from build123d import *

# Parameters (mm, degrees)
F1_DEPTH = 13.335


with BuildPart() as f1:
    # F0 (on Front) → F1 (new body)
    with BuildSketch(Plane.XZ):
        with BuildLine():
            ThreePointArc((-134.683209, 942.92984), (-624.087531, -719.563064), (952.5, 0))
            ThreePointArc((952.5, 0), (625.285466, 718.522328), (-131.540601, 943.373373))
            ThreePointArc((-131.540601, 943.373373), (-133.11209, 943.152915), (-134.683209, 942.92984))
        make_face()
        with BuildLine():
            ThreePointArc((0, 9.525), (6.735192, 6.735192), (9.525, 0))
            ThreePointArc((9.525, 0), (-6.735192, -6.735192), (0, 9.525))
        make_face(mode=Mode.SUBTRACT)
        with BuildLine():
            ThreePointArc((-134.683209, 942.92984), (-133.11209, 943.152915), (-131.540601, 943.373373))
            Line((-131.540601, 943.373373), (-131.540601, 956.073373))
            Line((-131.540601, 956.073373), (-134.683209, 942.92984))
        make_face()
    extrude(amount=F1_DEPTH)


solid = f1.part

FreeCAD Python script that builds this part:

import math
import FreeCAD as App
import Part
import Sketcher
from FreeCAD import Vector
Q = App.Units.Quantity

doc = App.newDocument("Part")
body = doc.addObject("PartDesign::Body", "Body")

# Sketch on XZ plane
sketch1 = body.newObject("Sketcher::SketchObject", "Sketch")
sketch1.AttachmentSupport = (doc.getObject("XZ_Plane"), [""])
sketch1.MapMode = "FlatFace"
sketch1.addGeometry(Part.ArcOfCircle(Part.Circle(Vector(0, 0, 0), Vector(0, 0, 1), 952), math.radians(98), math.radians(360)), False)
sketch1.addGeometry(Part.ArcOfCircle(Part.Circle(Vector(0, 0, 0), Vector(0, 0, 1), 953), math.radians(0), math.radians(98)), False)
sketch1.addGeometry(Part.LineSegment(Vector(-132, 943, 0), Vector(-132, 956, 0)), False)
sketch1.addGeometry(Part.LineSegment(Vector(-132, 956, 0), Vector(-135, 943, 0)), False)
sketch1.addGeometry(Part.ArcOfCircle(Part.Circle(Vector(0, 0, 0), Vector(0, 0, 1), 10), math.radians(90), math.radians(360)), False)
sketch1.addGeometry(Part.ArcOfCircle(Part.Circle(Vector(0, 0, 0), Vector(0, 0, 1), 10), math.radians(0), math.radians(90)), False)
sketch1.addConstraint(Sketcher.Constraint("Coincident", 0, 2, 1, 1))
sketch1.addConstraint(Sketcher.Constraint("Coincident", 1, 2, 2, 1))
sketch1.addConstraint(Sketcher.Constraint("Coincident", 2, 2, 3, 1))
sketch1.addConstraint(Sketcher.Constraint("Coincident", 3, 2, 0, 1))
sketch1.addConstraint(Sketcher.Constraint("Tangent", 4, 1, 5, 2))
sketch1.addConstraint(Sketcher.Constraint("Coincident", 5, 1, 4, 2))
sketch1.addConstraint(Sketcher.Constraint("Vertical", 2))
sketch1.addConstraint(Sketcher.Constraint("Coincident", 0, 3, -1, 1))
sketch1.addConstraint(Sketcher.Constraint("Coincident", 1, 3, -1, 1))
sketch1.addConstraint(Sketcher.Constraint("Coincident", 4, 3, -1, 1))
sketch1.addConstraint(Sketcher.Constraint("PointOnObject", 0, 2, -1))
sketch1.addConstraint(Sketcher.Constraint("PointOnObject", 4, 1, -2))
sketch1.addConstraint(Sketcher.Constraint("PointOnObject", 5, 1, -1))
sketch1.addConstraint(Sketcher.Constraint("Radius", 0, Q("37.5 in")))
sketch1.addConstraint(Sketcher.Constraint("DistanceY", 2, 1, 2, 2, Q("0.5 in")))
sketch1.addConstraint(Sketcher.Constraint("Radius", 4, Q("0.375 in")))
sketch1.addConstraint(Sketcher.Constraint("DistanceX", 2, 2, -1, 1, Q("131.540601 mm")))
sketch1.addConstraint(Sketcher.Constraint("Distance", 3, Q("13.514009 mm")))
pad1 = body.newObject("PartDesign::Pad", "Pad")
pad1.Profile = sketch1
pad1.Length = Q("0.525 in")

doc.recompute()
